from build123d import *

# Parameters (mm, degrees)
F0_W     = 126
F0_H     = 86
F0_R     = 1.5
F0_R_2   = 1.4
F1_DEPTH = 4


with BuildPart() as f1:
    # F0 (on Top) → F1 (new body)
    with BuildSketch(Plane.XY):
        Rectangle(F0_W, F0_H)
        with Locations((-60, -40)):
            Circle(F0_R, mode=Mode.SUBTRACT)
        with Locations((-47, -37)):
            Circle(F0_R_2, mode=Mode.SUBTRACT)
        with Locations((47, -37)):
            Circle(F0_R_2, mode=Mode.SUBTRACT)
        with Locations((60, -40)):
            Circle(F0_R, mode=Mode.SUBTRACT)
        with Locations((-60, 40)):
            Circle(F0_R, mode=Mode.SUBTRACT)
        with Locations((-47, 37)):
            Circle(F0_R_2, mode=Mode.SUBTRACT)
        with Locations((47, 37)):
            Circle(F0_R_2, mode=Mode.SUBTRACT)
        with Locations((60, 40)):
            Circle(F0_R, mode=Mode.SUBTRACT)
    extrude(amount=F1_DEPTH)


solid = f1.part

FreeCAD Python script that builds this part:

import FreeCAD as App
import Part
import Sketcher


def add_polygon(sketch, points):
    """Adds a closed chain of lines whose ends are joined by coincident constraints."""
    first, n = sketch.GeometryCount, len(points)
    for a, b in zip(points, points[1:] + points[:1]):
        sketch.addGeometry(Part.LineSegment(App.Vector(*a, 0), App.Vector(*b, 0)), False)
    for i in range(n):
        sketch.addConstraint(Sketcher.Constraint("Coincident", first + i, 2, first + (i + 1) % n, 1))

doc = App.newDocument("Part")
body = doc.addObject("PartDesign::Body", "Body")

# Sketch on XY plane
sketch1 = doc.addObject("Sketcher::SketchObject", "Sketch")
body.addObject(sketch1)
sketch1.AttachmentSupport = (doc.XY_Plane, [""])
sketch1.MapMode = "FlatFace"
add_polygon(sketch1, [(-63, 43), (-63, -43), (63, -43), (63, 43)])  # lines 0-3
sketch1.addGeometry(Part.Circle(App.Vector(-60, -40, 0), App.Vector(0, 0, 1), 1.5), False)  # 4
sketch1.addGeometry(Part.Circle(App.Vector(-47, -37, 0), App.Vector(0, 0, 1), 1.4), False)  # 5
sketch1.addGeometry(Part.Circle(App.Vector(47, -37, 0), App.Vector(0, 0, 1), 1.4), False)  # 6
sketch1.addGeometry(Part.Circle(App.Vector(60, -40, 0), App.Vector(0, 0, 1), 1.5), False)  # 7
sketch1.addGeometry(Part.Circle(App.Vector(-60, 40, 0), App.Vector(0, 0, 1), 1.5), False)  # 8
sketch1.addGeometry(Part.Circle(App.Vector(-47, 37, 0), App.Vector(0, 0, 1), 1.4), False)  # 9
sketch1.addGeometry(Part.Circle(App.Vector(47, 37, 0), App.Vector(0, 0, 1), 1.4), False)  # 10
sketch1.addGeometry(Part.Circle(App.Vector(60, 40, 0), App.Vector(0, 0, 1), 1.5), False)  # 11
sketch1.addConstraint(Sketcher.Constraint("Vertical", 0))
sketch1.addConstraint(Sketcher.Constraint("Horizontal", 1))
sketch1.addConstraint(Sketcher.Constraint("Vertical", 2))
sketch1.addConstraint(Sketcher.Constraint("Horizontal", 3))
sketch1.addConstraint(Sketcher.Constraint("Equal", 5, 6))
sketch1.addConstraint(Sketcher.Constraint("Equal", 4, 7))
sketch1.addConstraint(Sketcher.Constraint("Equal", 7, 8))
sketch1.addConstraint(Sketcher.Constraint("Equal", 6, 9))
sketch1.addConstraint(Sketcher.Constraint("Equal", 9, 10))
sketch1.addConstraint(Sketcher.Constraint("Equal", 8, 11))
sketch1.addConstraint(Sketcher.Constraint("Symmetric", 7, 3, 8, 3, -1, 1))
sketch1.addConstraint(Sketcher.Constraint("Symmetric", 6, 3, 9, 3, -1, 1))
sketch1.addConstraint(Sketcher.Constraint("Symmetric", 5, 3, 10, 3, -1, 1))
sketch1.addConstraint(Sketcher.Constraint("Symmetric", 4, 3, 11, 3, -1, 1))
sketch1.addConstraint(Sketcher.Constraint("Symmetric", 0, 2, 2, 2, -1, 1))
sketch1.addConstraint(Sketcher.Constraint("Symmetric", 5, 3, 6, 3, -2))
sketch1.addConstraint(Sketcher.Constraint("Symmetric", 4, 3, 7, 3, -2))
sketch1.addConstraint(Sketcher.Constraint("Diameter", 4, 3.0))
sketch1.addConstraint(Sketcher.Constraint("Diameter", 5, 2.8))
sketch1.addConstraint(Sketcher.Constraint("DistanceX", 1, 1, 1, 2, 126.0))
sketch1.addConstraint(Sketcher.Constraint("DistanceY", 0, 2, 0, 1, 86.0))
sketch1.addConstraint(Sketcher.Constraint("DistanceX", 4, 3, -1, 1, 60.0))
sketch1.addConstraint(Sketcher.Constraint("DistanceY", 4, 3, -1, 1, 40.0))
sketch1.addConstraint(Sketcher.Constraint("DistanceX", 5, 3, -1, 1, 47.0))
sketch1.addConstraint(Sketcher.Constraint("DistanceY", 5, 3, -1, 1, 37.0))
pad1 = doc.addObject("PartDesign::Pad", "Pad")
body.addObject(pad1)
pad1.Profile = sketch1
pad1.Length = 4

doc.recompute()
